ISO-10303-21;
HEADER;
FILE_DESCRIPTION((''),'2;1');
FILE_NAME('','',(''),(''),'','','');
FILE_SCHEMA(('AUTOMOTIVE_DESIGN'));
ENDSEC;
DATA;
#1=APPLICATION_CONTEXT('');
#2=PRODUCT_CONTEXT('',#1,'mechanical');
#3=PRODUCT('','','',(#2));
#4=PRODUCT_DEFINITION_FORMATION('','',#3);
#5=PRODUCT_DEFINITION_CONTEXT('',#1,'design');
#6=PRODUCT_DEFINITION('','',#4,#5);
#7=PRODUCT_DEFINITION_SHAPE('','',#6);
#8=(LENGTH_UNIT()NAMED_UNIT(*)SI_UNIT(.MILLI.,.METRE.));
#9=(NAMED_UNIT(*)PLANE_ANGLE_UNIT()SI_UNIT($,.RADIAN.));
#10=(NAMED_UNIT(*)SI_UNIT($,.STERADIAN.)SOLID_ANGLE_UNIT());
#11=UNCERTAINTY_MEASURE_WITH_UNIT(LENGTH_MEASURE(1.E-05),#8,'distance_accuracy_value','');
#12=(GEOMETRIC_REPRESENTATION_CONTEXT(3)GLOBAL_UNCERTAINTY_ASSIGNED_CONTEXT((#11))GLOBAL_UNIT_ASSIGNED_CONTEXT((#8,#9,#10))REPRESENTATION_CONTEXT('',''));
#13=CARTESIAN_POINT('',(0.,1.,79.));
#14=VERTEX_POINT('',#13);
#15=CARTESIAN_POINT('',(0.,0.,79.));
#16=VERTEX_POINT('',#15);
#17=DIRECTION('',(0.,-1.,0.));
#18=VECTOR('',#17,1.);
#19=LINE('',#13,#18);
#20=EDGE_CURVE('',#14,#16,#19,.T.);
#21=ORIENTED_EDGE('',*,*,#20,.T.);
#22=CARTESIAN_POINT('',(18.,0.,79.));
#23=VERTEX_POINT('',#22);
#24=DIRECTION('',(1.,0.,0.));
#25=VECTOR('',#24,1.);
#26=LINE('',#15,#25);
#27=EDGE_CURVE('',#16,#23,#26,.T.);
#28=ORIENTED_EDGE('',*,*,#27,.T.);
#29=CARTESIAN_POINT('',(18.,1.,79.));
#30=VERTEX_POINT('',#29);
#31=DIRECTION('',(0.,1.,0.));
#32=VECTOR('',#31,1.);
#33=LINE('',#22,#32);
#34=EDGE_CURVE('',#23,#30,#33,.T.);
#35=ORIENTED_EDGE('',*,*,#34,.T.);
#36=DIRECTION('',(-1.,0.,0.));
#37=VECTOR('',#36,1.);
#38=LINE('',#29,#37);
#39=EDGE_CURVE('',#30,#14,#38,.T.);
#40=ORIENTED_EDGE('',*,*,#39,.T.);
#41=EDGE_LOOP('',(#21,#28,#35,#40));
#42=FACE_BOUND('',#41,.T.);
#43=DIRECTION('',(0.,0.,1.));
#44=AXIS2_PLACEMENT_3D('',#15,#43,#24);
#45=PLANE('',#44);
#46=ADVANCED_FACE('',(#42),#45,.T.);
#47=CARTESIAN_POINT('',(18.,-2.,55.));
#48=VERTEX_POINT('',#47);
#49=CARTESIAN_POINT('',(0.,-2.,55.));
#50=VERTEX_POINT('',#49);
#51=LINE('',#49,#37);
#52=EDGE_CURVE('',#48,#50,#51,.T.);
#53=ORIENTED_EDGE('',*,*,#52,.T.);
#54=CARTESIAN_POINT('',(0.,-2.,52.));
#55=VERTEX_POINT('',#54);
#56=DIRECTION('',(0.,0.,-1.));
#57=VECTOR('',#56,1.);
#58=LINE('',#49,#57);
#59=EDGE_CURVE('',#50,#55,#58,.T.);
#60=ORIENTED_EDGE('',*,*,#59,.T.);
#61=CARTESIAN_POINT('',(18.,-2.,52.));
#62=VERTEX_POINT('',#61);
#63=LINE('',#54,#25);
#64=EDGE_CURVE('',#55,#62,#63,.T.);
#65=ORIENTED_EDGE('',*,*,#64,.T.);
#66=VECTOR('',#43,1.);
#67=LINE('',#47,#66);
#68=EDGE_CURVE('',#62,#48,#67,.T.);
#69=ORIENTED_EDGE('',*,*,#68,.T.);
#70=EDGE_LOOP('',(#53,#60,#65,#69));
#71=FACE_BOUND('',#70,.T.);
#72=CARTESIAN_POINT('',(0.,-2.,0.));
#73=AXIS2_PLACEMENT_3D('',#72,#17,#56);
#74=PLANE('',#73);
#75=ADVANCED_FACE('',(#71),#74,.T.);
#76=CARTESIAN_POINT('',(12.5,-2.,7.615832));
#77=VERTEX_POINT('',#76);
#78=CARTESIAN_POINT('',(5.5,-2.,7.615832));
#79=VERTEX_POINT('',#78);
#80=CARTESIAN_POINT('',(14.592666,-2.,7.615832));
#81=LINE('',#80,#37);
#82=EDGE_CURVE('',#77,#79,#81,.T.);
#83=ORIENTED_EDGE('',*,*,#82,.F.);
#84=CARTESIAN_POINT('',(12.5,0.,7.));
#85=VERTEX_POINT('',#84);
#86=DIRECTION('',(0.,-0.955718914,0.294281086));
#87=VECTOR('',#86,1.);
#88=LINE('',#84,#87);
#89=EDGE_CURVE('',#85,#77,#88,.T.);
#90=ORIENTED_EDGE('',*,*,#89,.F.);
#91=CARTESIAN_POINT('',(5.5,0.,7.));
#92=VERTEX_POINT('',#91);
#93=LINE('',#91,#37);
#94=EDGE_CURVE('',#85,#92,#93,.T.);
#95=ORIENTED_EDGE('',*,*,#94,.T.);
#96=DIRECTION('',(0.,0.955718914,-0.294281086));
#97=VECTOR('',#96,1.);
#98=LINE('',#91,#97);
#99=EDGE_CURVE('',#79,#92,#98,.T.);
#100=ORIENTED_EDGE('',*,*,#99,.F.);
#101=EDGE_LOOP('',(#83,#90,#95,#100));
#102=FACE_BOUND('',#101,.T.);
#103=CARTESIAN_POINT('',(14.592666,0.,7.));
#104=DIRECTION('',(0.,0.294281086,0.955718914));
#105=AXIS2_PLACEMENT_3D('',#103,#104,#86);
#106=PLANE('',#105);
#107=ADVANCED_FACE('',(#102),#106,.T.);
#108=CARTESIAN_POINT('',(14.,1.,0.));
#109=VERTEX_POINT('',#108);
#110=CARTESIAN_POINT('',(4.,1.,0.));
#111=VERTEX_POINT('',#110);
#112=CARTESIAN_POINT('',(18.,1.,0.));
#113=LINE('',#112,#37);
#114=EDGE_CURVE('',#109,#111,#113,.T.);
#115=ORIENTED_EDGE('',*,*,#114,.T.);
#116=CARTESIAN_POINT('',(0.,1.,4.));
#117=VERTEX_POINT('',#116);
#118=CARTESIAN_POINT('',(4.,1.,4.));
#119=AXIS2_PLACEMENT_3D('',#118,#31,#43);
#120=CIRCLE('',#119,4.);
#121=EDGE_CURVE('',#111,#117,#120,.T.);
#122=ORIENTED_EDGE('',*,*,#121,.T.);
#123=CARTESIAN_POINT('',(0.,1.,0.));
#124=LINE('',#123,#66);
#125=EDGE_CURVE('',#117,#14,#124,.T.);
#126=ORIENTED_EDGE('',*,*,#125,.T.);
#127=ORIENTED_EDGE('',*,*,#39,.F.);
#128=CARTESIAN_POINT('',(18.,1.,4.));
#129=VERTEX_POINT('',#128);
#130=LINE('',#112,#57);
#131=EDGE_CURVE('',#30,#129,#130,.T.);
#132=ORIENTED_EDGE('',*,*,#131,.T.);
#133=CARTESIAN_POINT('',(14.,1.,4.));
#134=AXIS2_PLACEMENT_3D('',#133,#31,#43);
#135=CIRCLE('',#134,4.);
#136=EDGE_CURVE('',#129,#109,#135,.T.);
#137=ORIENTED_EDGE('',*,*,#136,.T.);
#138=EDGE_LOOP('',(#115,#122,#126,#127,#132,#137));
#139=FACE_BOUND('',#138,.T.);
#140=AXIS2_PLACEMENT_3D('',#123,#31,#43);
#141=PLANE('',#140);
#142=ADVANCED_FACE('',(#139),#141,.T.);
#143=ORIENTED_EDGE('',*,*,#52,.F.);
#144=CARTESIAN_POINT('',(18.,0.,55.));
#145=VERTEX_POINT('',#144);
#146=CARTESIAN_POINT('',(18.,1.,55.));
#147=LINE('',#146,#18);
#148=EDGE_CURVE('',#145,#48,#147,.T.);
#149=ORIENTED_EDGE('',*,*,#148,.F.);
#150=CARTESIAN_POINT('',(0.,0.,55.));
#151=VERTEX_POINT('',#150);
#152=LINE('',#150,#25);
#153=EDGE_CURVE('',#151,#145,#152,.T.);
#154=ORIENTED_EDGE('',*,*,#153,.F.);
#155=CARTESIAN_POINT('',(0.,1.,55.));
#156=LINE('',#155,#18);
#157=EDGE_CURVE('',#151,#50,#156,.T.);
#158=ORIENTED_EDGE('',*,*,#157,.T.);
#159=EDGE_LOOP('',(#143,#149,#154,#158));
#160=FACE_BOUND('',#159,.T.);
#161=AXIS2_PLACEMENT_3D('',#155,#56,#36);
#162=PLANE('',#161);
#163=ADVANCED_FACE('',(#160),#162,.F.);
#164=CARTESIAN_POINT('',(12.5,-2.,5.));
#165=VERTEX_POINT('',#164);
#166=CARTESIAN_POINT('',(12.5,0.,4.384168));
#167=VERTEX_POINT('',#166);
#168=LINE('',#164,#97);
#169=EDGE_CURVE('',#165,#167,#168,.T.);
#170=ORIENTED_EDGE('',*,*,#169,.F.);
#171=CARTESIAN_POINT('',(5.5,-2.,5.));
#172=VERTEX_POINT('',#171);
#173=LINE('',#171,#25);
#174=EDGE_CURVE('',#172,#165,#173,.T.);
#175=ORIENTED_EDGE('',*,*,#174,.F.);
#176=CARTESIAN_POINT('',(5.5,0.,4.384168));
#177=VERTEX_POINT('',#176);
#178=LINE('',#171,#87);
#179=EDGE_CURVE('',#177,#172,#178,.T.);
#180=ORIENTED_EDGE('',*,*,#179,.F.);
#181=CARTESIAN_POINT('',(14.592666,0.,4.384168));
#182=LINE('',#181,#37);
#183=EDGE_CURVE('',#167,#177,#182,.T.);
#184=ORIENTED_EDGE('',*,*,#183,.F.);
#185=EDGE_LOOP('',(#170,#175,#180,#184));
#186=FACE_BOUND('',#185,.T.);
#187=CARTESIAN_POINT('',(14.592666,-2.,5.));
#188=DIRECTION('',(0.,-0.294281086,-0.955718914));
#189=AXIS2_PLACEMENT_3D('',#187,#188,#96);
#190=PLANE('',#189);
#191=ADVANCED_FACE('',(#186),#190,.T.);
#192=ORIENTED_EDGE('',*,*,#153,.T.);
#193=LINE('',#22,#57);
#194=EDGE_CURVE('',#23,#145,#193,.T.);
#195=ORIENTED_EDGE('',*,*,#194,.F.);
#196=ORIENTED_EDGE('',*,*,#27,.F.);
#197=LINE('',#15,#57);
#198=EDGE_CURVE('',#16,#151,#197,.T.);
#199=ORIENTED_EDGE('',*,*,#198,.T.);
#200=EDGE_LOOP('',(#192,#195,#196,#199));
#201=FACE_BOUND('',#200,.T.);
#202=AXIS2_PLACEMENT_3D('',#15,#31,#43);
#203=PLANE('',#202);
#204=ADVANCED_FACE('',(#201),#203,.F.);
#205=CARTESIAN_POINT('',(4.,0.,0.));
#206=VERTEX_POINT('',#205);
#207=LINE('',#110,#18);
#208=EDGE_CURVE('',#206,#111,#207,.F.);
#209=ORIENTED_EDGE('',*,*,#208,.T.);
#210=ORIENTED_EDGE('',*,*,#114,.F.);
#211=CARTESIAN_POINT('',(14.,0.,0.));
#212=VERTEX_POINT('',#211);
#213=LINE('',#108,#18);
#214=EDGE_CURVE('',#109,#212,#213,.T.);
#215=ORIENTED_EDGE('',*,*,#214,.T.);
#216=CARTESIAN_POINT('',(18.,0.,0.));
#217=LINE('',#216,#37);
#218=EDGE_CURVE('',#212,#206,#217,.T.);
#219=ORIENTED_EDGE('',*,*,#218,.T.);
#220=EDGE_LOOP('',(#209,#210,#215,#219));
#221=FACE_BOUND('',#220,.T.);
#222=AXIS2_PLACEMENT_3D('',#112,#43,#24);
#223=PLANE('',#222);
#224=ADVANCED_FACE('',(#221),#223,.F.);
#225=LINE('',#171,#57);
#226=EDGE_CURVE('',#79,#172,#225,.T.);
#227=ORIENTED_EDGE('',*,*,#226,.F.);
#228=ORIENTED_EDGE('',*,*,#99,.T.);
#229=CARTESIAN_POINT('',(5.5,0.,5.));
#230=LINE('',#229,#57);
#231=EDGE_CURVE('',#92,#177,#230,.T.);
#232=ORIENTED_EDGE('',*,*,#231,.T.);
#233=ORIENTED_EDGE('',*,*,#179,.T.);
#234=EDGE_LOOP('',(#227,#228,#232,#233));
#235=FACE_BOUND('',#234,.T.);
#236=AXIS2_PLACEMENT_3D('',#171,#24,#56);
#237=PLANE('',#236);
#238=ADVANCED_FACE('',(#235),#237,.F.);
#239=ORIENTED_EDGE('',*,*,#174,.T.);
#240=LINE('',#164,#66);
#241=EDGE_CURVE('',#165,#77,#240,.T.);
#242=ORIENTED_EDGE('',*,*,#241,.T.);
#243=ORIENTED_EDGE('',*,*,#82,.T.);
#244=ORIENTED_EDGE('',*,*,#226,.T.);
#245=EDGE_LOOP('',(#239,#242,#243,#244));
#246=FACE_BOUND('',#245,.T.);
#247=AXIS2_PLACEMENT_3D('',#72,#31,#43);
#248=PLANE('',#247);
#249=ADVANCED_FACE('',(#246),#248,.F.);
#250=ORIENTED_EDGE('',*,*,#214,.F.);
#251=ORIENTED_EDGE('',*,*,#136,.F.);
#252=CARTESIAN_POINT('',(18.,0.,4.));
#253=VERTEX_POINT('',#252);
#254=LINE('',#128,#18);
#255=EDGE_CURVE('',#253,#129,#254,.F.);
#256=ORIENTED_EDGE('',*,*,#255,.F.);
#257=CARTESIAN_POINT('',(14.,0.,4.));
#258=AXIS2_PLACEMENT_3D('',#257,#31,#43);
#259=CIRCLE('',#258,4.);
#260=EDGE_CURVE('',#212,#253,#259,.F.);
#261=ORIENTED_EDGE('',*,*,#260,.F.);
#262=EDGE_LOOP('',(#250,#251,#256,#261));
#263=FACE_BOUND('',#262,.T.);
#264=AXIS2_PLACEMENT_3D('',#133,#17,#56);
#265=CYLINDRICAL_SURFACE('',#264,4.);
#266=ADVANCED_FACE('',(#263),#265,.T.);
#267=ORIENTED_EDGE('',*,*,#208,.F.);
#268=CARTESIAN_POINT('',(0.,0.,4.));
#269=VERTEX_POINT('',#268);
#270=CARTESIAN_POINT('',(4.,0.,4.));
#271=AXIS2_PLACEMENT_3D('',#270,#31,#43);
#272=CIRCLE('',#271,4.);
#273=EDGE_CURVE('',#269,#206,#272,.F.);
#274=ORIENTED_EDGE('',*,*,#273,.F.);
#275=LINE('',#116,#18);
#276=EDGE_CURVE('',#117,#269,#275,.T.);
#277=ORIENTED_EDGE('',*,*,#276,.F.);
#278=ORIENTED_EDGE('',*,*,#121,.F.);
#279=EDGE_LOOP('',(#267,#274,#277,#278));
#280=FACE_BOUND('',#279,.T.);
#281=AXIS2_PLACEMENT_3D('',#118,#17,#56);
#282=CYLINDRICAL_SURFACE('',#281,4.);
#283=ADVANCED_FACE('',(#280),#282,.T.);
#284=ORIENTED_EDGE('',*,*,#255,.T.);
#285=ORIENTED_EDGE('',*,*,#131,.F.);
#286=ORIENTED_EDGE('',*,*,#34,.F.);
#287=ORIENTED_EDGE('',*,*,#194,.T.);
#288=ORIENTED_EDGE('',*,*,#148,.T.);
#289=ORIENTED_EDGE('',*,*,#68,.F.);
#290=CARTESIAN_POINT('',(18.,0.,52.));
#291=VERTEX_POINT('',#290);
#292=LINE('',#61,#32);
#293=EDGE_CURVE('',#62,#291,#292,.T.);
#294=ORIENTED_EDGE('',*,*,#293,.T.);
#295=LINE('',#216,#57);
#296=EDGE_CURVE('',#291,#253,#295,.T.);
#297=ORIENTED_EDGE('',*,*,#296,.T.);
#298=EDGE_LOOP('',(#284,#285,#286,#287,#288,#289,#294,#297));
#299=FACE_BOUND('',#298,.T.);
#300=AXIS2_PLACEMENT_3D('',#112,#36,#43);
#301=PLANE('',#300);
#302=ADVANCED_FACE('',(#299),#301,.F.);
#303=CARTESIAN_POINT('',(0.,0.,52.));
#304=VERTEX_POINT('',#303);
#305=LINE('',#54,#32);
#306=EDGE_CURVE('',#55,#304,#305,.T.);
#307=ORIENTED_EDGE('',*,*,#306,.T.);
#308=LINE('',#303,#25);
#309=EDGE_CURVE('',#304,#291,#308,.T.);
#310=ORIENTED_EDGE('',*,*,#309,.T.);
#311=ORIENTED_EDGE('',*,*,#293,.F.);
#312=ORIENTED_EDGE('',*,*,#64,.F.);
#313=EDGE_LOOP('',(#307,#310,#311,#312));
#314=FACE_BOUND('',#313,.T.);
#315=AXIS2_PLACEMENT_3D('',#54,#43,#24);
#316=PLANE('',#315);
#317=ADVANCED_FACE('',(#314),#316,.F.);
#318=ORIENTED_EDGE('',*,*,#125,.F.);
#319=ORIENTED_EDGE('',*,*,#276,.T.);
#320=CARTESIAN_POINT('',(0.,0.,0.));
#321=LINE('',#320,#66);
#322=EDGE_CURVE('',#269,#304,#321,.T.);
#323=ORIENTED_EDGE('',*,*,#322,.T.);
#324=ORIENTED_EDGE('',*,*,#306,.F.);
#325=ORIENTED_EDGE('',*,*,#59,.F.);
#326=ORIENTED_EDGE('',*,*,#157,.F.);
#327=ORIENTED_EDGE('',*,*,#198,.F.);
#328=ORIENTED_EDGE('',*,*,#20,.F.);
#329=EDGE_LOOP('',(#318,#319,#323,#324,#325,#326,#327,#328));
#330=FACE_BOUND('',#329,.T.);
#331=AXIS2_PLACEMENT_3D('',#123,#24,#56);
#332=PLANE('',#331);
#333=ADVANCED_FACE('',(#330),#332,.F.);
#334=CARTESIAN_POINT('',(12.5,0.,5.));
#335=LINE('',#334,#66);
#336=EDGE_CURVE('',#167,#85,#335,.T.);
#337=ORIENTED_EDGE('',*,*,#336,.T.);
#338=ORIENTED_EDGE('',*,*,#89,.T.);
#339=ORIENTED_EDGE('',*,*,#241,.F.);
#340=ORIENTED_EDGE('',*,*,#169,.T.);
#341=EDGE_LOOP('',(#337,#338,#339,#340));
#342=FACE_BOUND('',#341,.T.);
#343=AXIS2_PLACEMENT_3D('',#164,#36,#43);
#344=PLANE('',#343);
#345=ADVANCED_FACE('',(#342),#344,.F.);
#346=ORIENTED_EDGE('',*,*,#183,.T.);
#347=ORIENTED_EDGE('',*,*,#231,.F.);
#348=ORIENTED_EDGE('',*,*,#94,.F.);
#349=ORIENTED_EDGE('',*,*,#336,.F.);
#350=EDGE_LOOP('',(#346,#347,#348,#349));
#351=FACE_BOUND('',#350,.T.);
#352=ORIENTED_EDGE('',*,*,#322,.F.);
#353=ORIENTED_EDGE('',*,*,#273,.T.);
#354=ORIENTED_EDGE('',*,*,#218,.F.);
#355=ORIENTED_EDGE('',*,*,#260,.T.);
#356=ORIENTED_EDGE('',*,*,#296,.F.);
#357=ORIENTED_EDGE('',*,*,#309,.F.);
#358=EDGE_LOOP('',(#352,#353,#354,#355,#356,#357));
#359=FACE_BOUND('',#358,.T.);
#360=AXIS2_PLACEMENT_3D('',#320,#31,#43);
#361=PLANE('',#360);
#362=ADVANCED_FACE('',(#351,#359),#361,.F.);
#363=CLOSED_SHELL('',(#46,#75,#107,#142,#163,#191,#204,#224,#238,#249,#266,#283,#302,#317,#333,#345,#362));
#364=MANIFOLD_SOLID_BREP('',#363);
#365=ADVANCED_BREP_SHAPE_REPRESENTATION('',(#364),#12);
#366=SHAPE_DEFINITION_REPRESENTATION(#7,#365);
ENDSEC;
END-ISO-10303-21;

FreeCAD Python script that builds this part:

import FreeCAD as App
import Part
import Sketcher

V = App.Vector


def edges_at(feature, points):
    """Names of the edges that pass closest to the given points."""
    edges = feature.Shape.Edges
    near = lambda p: min(range(len(edges)), key=lambda i: edges[i].distToShape(Part.Vertex(*p))[0])
    return sorted({f"Edge{near(p) + 1}" for p in points})

doc = App.newDocument("Part")
body = doc.addObject("PartDesign::Body", "Body")

# Sketch on XZ plane
sketch1 = body.newObject("Sketcher::SketchObject", "Sketch")
sketch1.AttachmentSupport = (doc.getObject("XZ_Plane"), [""])
sketch1.MapMode = "FlatFace"
sketch1.addGeometry(Part.LineSegment(V(0, 0, 0), V(0, 55, 0)), False)
sketch1.addGeometry(Part.LineSegment(V(0, 55, 0), V(18, 55, 0)), False)
sketch1.addGeometry(Part.LineSegment(V(18, 55, 0), V(18, 0, 0)), False)
sketch1.addGeometry(Part.LineSegment(V(18, 0, 0), V(0, 0, 0)), False)
sketch1.addConstraint(Sketcher.Constraint("Coincident", 0, 2, 1, 1))
sketch1.addConstraint(Sketcher.Constraint("Coincident", 1, 2, 2, 1))
sketch1.addConstraint(Sketcher.Constraint("Coincident", 2, 2, 3, 1))
sketch1.addConstraint(Sketcher.Constraint("Coincident", 3, 2, 0, 1))
sketch1.addConstraint(Sketcher.Constraint("Vertical", 0))
sketch1.addConstraint(Sketcher.Constraint("Horizontal", 1))
sketch1.addConstraint(Sketcher.Constraint("Vertical", 2))
sketch1.addConstraint(Sketcher.Constraint("Horizontal", 3))
sketch1.addConstraint(Sketcher.Constraint("Coincident", 3, 2, -1, 1))
sketch1.addConstraint(Sketcher.Constraint("DistanceX", 1, 1, 1, 2, 18.0))
sketch1.addConstraint(Sketcher.Constraint("DistanceY", 0, 1, 0, 2, 55.0))
pad1 = body.newObject("PartDesign::Pad", "Pad")
pad1.Profile = sketch1
pad1.Length = 1
pad1.Reversed = True

# Sketch on XZ plane
sketch2 = body.newObject("Sketcher::SketchObject", "Sketch001")
sketch2.AttachmentSupport = (doc.getObject("XZ_Plane"), [""])
sketch2.MapMode = "FlatFace"
sketch2.addGeometry(Part.LineSegment(V(0, 55, 0), V(0, 52, 0)), False)
sketch2.addGeometry(Part.LineSegment(V(0, 52, 0), V(18, 52, 0)), False)
sketch2.addGeometry(Part.LineSegment(V(18, 52, 0), V(18, 55, 0)), False)
sketch2.addGeometry(Part.LineSegment(V(18, 55, 0), V(0, 55, 0)), False)
sketch2.addConstraint(Sketcher.Constraint("Coincident", 0, 2, 1, 1))
sketch2.addConstraint(Sketcher.Constraint("Coincident", 1, 2, 2, 1))
sketch2.addConstraint(Sketcher.Constraint("Coincident", 2, 2, 3, 1))
sketch2.addConstraint(Sketcher.Constraint("Coincident", 3, 2, 0, 1))
sketch2.addConstraint(Sketcher.Constraint("Vertical", 0))
sketch2.addConstraint(Sketcher.Constraint("Horizontal", 1))
sketch2.addConstraint(Sketcher.Constraint("Vertical", 2))
sketch2.addConstraint(Sketcher.Constraint("Horizontal", 3))
sketch2.addConstraint(Sketcher.Constraint("PointOnObject", 0, 2, -2))
sketch2.addConstraint(Sketcher.Constraint("DistanceX", 1, 1, 1, 2, 18.0))
sketch2.addConstraint(Sketcher.Constraint("DistanceY", 0, 2, 0, 1, 3.0))
sketch2.addConstraint(Sketcher.Constraint("DistanceY", -1, 1, 0, 2, 52.0))
pad2 = body.newObject("PartDesign::Pad", "Pad001")
pad2.Profile = sketch2
pad2.Length = 2

# Sketch on XY plane
sketch3 = body.newObject("Sketcher::SketchObject", "Sketch002")
sketch3.AttachmentSupport = (doc.getObject("XY_Plane"), [""])
sketch3.MapMode = "FlatFace"
sketch3.AttachmentOffset = App.Placement(V(0, 0, 55), App.Rotation())
sketch3.addGeometry(Part.LineSegment(V(0, 1, 0), V(0, 0, 0)), False)
sketch3.addGeometry(Part.LineSegment(V(0, 0, 0), V(18, 0, 0)), False)
sketch3.addGeometry(Part.LineSegment(V(18, 0, 0), V(18, 1, 0)), False)
sketch3.addGeometry(Part.LineSegment(V(18, 1, 0), V(0, 1, 0)), False)
sketch3.addConstraint(Sketcher.Constraint("Coincident", 0, 2, 1, 1))
sketch3.addConstraint(Sketcher.Constraint("Coincident", 1, 2, 2, 1))
sketch3.addConstraint(Sketcher.Constraint("Coincident", 2, 2, 3, 1))
sketch3.addConstraint(Sketcher.Constraint("Coincident", 3, 2, 0, 1))
sketch3.addConstraint(Sketcher.Constraint("Vertical", 0))
sketch3.addConstraint(Sketcher.Constraint("Horizontal", 1))
sketch3.addConstraint(Sketcher.Constraint("Vertical", 2))
sketch3.addConstraint(Sketcher.Constraint("Horizontal", 3))
sketch3.addConstraint(Sketcher.Constraint("Coincident", 0, 2, -1, 1))
sketch3.addConstraint(Sketcher.Constraint("DistanceX", 1, 1, 1, 2, 18.0))
sketch3.addConstraint(Sketcher.Constraint("DistanceY", 0, 2, 0, 1, 1.0))
pad3 = body.newObject("PartDesign::Pad", "Pad002")
pad3.Profile = sketch3
pad3.Length = 24

# Sketch on XZ plane
sketch4 = body.newObject("Sketcher::SketchObject", "Sketch003")
sketch4.AttachmentSupport = (doc.getObject("XZ_Plane"), [""])
sketch4.MapMode = "FlatFace"
sketch4.addGeometry(Part.LineSegment(V(5.5, 7, 0), V(5.5, 5, 0)), False)
sketch4.addGeometry(Part.LineSegment(V(5.5, 5, 0), V(12.5, 5, 0)), False)
sketch4.addGeometry(Part.LineSegment(V(12.5, 5, 0), V(12.5, 7, 0)), False)
sketch4.addGeometry(Part.LineSegment(V(12.5, 7, 0), V(5.5, 7, 0)), False)
sketch4.addConstraint(Sketcher.Constraint("Coincident", 0, 2, 1, 1))
sketch4.addConstraint(Sketcher.Constraint("Coincident", 1, 2, 2, 1))
sketch4.addConstraint(Sketcher.Constraint("Coincident", 2, 2, 3, 1))
sketch4.addConstraint(Sketcher.Constraint("Coincident", 3, 2, 0, 1))
sketch4.addConstraint(Sketcher.Constraint("Vertical", 0))
sketch4.addConstraint(Sketcher.Constraint("Horizontal", 1))
sketch4.addConstraint(Sketcher.Constraint("Vertical", 2))
sketch4.addConstraint(Sketcher.Constraint("Horizontal", 3))
sketch4.addConstraint(Sketcher.Constraint("DistanceX", 1, 1, 1, 2, 7.0))
sketch4.addConstraint(Sketcher.Constraint("DistanceY", 0, 2, 0, 1, 2.0))
sketch4.addConstraint(Sketcher.Constraint("DistanceY", -1, 1, 0, 2, 5.0))
sketch4.addConstraint(Sketcher.Constraint("DistanceX", -1, 1, 0, 2, 5.5))
pad4 = body.newObject("PartDesign::Pad", "Pad003")
pad4.Profile = sketch4
pad4.Length = 2
doc.recompute()

fillet = body.newObject("PartDesign::Fillet", "Fillet")
fillet.Base = (pad4, edges_at(pad4, [(0, 0.5, 0), (18, 0.5, 0)]))
fillet.Radius = 4

# Sketch on YZ plane
sketch5 = body.newObject("Sketcher::SketchObject", "Sketch004")
sketch5.AttachmentSupport = (doc.getObject("YZ_Plane"), [""])
sketch5.MapMode = "FlatFace"
sketch5.AttachmentOffset = App.Placement(V(0, 0, 5.5), App.Rotation())
sketch5.addGeometry(Part.LineSegment(V(-2, 7.615832, 0), V(0, 7, 0)), False)
sketch5.addGeometry(Part.LineSegment(V(0, 7, 0), V(-2, 7, 0)), False)
sketch5.addGeometry(Part.LineSegment(V(-2, 7, 0), V(-2, 7.615832, 0)), False)
sketch5.addGeometry(Part.LineSegment(V(-2, 5, 0), V(0, 5, 0)), False)
sketch5.addGeometry(Part.LineSegment(V(0, 5, 0), V(0, 4.384168, 0)), False)
sketch5.addGeometry(Part.LineSegment(V(0, 4.384168, 0), V(-2, 5, 0)), False)
sketch5.addConstraint(Sketcher.Constraint("Coincident", 0, 2, 1, 1))
sketch5.addConstraint(Sketcher.Constraint("Coincident", 1, 2, 2, 1))
sketch5.addConstraint(Sketcher.Constraint("Coincident", 2, 2, 0, 1))
sketch5.addConstraint(Sketcher.Constraint("Coincident", 3, 2, 4, 1))
sketch5.addConstraint(Sketcher.Constraint("Coincident", 4, 2, 5, 1))
sketch5.addConstraint(Sketcher.Constraint("Coincident", 5, 2, 3, 1))
sketch5.addConstraint(Sketcher.Constraint("Horizontal", 1))
sketch5.addConstraint(Sketcher.Constraint("Vertical", 2))
sketch5.addConstraint(Sketcher.Constraint("Horizontal", 3))
sketch5.addConstraint(Sketcher.Constraint("Vertical", 4))
sketch5.addConstraint(Sketcher.Constraint("PointOnObject", 0, 2, -2))
sketch5.addConstraint(Sketcher.Constraint("PointOnObject", 3, 2, -2))
sketch5.addConstraint(Sketcher.Constraint("Parallel", 0, 5))
sketch5.addConstraint(Sketcher.Constraint("Vertical", 2, 2, 5, 2))
sketch5.addConstraint(Sketcher.Constraint("DistanceX", 1, 2, 1, 1, 2.0))
sketch5.addConstraint(Sketcher.Constraint("DistanceY", -1, 1, 0, 2, 7.0))
sketch5.addConstraint(Sketcher.Constraint("DistanceY", -1, 1, 3, 2, 5.0))
sketch5.addConstraint(Sketcher.Constraint("DistanceY", 2, 1, 2, 2, 0.615832))
pad5 = body.newObject("PartDesign::Pad", "Pad004")
pad5.Profile = sketch5
pad5.Length = 7

doc.recompute()
